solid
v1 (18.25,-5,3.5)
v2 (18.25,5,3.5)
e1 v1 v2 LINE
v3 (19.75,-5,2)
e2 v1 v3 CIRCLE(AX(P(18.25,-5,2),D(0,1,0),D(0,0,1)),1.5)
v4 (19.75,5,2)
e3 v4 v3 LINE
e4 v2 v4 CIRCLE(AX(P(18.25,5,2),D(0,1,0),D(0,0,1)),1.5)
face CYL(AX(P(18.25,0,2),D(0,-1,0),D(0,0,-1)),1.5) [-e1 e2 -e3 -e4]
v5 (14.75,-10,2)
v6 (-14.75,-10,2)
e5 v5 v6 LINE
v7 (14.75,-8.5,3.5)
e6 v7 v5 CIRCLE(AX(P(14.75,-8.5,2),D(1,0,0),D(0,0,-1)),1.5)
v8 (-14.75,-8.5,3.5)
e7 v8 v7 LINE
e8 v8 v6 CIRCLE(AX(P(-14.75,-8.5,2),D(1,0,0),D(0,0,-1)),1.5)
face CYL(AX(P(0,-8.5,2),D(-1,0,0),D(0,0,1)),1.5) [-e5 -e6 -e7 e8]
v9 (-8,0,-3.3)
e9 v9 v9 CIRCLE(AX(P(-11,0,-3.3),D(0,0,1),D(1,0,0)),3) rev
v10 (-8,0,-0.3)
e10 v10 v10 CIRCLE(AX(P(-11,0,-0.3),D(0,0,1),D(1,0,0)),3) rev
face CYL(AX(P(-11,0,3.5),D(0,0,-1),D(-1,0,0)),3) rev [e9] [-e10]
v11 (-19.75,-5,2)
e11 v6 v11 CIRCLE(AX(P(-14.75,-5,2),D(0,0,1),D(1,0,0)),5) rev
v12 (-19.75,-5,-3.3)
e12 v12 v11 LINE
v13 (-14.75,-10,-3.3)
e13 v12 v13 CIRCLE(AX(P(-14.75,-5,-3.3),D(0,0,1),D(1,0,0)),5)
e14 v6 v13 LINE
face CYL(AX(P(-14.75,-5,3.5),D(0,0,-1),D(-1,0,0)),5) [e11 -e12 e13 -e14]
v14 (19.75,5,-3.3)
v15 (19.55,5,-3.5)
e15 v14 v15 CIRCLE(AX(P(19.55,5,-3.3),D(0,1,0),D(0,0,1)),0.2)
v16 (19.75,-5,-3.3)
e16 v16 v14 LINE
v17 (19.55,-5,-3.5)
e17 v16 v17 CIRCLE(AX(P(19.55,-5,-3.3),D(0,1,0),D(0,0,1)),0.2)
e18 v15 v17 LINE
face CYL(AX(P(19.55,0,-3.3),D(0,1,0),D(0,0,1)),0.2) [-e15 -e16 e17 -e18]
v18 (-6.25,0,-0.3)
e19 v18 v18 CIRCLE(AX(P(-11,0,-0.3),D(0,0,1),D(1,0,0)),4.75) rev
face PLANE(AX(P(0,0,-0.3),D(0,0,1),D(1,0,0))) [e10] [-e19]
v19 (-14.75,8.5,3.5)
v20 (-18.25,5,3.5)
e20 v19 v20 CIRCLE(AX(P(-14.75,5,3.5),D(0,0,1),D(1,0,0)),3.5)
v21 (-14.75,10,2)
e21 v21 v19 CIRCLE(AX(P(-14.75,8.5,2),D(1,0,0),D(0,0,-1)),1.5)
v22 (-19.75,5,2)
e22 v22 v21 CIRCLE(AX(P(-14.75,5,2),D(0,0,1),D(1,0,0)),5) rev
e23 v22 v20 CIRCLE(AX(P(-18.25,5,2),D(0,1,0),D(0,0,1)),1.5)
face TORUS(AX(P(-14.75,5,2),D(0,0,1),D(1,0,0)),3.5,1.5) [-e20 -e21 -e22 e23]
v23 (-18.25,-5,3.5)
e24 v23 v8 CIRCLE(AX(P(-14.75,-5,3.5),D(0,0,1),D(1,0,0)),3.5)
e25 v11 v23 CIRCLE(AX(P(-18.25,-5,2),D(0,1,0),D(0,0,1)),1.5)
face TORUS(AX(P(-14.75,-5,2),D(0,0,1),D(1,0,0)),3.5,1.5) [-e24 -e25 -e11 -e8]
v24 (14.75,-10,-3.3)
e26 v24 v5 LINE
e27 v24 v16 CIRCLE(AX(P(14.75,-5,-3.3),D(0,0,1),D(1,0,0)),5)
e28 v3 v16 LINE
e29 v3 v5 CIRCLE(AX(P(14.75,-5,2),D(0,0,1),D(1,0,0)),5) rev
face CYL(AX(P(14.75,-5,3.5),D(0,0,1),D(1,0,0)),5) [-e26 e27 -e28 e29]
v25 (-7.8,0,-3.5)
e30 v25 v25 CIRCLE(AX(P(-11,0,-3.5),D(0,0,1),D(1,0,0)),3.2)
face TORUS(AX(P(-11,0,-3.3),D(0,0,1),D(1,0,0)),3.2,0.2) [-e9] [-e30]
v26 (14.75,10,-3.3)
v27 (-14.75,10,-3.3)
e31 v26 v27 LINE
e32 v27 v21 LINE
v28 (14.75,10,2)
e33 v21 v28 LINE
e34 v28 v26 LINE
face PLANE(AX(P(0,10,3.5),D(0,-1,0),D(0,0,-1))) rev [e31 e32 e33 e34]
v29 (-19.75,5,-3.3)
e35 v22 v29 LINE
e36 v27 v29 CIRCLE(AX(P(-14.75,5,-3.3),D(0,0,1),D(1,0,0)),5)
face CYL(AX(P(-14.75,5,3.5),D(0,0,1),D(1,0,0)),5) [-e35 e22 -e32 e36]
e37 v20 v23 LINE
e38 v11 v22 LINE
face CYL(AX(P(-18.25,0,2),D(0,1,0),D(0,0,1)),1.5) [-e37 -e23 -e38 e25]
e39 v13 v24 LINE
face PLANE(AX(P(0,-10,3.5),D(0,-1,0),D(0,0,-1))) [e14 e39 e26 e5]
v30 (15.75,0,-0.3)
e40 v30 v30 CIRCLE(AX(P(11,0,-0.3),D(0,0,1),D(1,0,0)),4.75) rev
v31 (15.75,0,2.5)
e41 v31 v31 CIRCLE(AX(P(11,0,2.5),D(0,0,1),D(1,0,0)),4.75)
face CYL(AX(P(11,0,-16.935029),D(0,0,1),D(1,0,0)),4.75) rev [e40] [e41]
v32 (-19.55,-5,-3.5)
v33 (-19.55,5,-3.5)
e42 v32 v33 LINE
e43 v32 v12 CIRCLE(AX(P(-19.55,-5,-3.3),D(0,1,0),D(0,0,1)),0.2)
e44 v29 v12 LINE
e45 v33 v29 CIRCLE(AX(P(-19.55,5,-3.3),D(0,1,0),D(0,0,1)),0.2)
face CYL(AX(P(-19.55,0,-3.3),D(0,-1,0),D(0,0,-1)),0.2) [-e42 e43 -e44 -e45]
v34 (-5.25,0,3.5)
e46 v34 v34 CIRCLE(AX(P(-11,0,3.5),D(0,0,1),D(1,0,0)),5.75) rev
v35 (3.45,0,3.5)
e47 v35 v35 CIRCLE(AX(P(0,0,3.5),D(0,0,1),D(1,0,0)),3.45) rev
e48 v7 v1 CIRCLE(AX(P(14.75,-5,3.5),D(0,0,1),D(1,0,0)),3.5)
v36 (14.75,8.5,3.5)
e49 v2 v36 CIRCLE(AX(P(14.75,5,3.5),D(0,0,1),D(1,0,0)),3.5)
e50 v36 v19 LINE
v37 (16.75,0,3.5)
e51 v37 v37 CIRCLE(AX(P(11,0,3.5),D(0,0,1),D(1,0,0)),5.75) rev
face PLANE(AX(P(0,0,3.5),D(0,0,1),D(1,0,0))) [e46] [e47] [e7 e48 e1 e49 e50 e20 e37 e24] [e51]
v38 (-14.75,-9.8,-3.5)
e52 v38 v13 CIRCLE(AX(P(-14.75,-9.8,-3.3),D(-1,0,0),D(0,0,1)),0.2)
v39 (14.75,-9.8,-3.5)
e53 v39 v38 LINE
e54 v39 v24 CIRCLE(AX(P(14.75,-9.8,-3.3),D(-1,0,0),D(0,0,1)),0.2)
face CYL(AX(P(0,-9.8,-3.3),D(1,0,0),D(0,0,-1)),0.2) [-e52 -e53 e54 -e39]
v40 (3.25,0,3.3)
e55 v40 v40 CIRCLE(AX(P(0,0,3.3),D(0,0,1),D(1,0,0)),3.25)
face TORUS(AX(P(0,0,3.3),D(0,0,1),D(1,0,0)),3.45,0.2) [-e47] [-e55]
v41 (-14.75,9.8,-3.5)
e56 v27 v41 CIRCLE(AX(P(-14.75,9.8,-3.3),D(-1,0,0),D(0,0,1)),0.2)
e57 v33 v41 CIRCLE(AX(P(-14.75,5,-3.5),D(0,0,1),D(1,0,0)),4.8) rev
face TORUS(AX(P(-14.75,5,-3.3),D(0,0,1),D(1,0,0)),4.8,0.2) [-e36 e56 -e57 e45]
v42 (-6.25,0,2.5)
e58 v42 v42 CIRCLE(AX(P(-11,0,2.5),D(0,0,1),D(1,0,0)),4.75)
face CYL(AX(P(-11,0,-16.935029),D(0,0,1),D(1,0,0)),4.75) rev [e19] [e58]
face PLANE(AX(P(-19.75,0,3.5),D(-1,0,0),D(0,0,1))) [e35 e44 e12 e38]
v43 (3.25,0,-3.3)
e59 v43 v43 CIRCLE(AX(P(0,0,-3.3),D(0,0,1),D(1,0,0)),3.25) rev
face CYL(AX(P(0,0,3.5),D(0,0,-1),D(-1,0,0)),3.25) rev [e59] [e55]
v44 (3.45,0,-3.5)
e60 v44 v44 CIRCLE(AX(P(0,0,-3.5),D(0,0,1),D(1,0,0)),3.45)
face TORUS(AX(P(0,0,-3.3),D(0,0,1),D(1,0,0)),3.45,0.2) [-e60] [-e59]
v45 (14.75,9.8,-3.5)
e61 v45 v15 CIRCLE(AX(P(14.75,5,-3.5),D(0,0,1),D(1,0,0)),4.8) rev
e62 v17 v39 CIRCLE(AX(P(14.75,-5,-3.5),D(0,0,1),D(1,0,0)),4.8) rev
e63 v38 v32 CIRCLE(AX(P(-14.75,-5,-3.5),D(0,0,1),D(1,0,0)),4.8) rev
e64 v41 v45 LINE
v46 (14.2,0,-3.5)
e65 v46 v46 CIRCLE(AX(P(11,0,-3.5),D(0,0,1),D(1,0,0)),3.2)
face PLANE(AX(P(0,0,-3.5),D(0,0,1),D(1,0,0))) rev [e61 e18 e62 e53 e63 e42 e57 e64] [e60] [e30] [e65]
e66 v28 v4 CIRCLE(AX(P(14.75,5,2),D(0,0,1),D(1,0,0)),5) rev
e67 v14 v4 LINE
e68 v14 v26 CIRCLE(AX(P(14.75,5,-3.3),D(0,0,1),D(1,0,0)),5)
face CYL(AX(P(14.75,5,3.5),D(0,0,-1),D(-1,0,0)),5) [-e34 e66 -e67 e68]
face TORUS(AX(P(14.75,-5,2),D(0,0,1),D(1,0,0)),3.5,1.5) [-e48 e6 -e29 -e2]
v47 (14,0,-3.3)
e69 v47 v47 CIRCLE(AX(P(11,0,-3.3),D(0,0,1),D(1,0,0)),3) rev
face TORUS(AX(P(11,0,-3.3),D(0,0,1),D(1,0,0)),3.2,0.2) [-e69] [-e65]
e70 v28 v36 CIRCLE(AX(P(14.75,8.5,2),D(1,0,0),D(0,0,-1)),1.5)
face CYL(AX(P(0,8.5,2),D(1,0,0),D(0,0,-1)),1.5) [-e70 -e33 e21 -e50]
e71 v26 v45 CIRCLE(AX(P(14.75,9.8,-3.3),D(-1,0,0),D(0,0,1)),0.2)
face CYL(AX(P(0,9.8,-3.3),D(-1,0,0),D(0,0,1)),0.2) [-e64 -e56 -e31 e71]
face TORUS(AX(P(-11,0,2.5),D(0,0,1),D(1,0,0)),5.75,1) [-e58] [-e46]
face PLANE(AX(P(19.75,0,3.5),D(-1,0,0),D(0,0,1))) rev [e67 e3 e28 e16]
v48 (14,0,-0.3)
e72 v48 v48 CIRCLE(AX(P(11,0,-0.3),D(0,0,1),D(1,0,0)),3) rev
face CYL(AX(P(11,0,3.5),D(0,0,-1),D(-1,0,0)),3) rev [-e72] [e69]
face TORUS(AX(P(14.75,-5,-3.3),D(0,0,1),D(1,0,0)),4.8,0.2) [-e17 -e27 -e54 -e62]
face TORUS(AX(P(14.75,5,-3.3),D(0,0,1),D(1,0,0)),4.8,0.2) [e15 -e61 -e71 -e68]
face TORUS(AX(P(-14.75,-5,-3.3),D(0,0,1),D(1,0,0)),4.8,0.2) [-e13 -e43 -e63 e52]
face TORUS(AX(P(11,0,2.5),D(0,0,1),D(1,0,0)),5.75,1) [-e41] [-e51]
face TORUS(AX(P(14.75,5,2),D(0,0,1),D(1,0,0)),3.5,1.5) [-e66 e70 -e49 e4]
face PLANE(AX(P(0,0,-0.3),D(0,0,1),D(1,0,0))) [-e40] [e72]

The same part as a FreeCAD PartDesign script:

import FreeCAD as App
import Part
import Sketcher

V = App.Vector
Q = App.Units.Quantity


def edges_at(feature, points):
    """Names of the edges that pass closest to the given points."""
    edges = feature.Shape.Edges
    near = lambda p: min(range(len(edges)), key=lambda i: edges[i].distToShape(Part.Vertex(*p))[0])
    return sorted({f"Edge{near(p) + 1}" for p in points})


def add_polygon(sketch, points):
    """Adds a closed chain of lines whose ends are joined by coincident constraints."""
    first, n = sketch.GeometryCount, len(points)
    for a, b in zip(points, points[1:] + points[:1]):
        sketch.addGeometry(Part.LineSegment(App.Vector(*a, 0), App.Vector(*b, 0)), False)
    for i in range(n):
        sketch.addConstraint(Sketcher.Constraint("Coincident", first + i, 2, first + (i + 1) % n, 1))

doc = App.newDocument("Part")
body = doc.addObject("PartDesign::Body", "Body")

sketch1 = body.newObject("Sketcher::SketchObject", "Sketch")
sketch1.AttachmentSupport = (doc.getObject("XY_Plane"), [""])
sketch1.MapMode = "FlatFace"
add_polygon(sketch1, [(-19.8, 10), (-19.8, -10), (19.8, -10), (19.8, 10)])
sketch1.addGeometry(Part.Circle(V(0, 0, 0), V(0, 0, 1), 3.2), False)
sketch1.addGeometry(Part.Circle(V(-11, 0, 0), V(0, 0, 1), 3), False)
sketch1.addGeometry(Part.Circle(V(11, 0, 0), V(0, 0, 1), 3), False)
sketch1.addConstraint(Sketcher.Constraint("Vertical", 0))
sketch1.addConstraint(Sketcher.Constraint("Horizontal", 1))
sketch1.addConstraint(Sketcher.Constraint("Vertical", 2))
sketch1.addConstraint(Sketcher.Constraint("Horizontal", 3))
sketch1.addConstraint(Sketcher.Constraint("Coincident", 4, 3, -1, 1))
sketch1.addConstraint(Sketcher.Constraint("Equal", 5, 6))
sketch1.addConstraint(Sketcher.Constraint("Symmetric", 5, 3, 6, 3, -1, 1))
sketch1.addConstraint(Sketcher.Constraint("Symmetric", 0, 2, 2, 2, -1, 1))
sketch1.addConstraint(Sketcher.Constraint("PointOnObject", 5, 3, -1))
sketch1.addConstraint(Sketcher.Constraint("Diameter", 5, Q("6 mm")))
sketch1.addConstraint(Sketcher.Constraint("Diameter", 4, Q("6.5 mm")))
sketch1.addConstraint(Sketcher.Constraint("DistanceY", 0, 2, 0, 1, Q("20 mm")))
sketch1.addConstraint(Sketcher.Constraint("DistanceX", 1, 1, 1, 2, Q("39.5 mm")))
sketch1.addConstraint(Sketcher.Constraint("DistanceX", 5, 3, -1, 1, Q("11 mm")))
pad1 = body.newObject("PartDesign::Pad", "Pad")
pad1.Profile = sketch1
pad1.Length = 7
pad1.Midplane = True

sketch2 = body.newObject("Sketcher::SketchObject", "Sketch001")
sketch2.AttachmentSupport = (doc.getObject("XY_Plane"), [""])
sketch2.MapMode = "FlatFace"
sketch2.AttachmentOffset = App.Placement(V(0, 0, -0.3), App.Rotation())
sketch2.addGeometry(Part.Circle(V(-11, 0, 0), V(0, 0, 1), 4.8), False)
sketch2.addGeometry(Part.Circle(V(-11, 0, 0), V(0, 0, 1), 3), False)
sketch2.addGeometry(Part.Circle(V(11, 0, 0), V(0, 0, 1), 4.8), False)
sketch2.addGeometry(Part.Circle(V(11, 0, 0), V(0, 0, 1), 3), False)
sketch2.addConstraint(Sketcher.Constraint("Coincident", 1, 3, 0, 3))
sketch2.addConstraint(Sketcher.Constraint("Coincident", 3, 3, 2, 3))
sketch2.addConstraint(Sketcher.Constraint("Equal", 0, 2))
sketch2.addConstraint(Sketcher.Constraint("Equal", 1, 3))
sketch2.addConstraint(Sketcher.Constraint("Symmetric", 0, 3, 2, 3, -1, 1))
sketch2.addConstraint(Sketcher.Constraint("PointOnObject", 0, 3, -1))
sketch2.addConstraint(Sketcher.Constraint("Diameter", 1, Q("6 mm")))
sketch2.addConstraint(Sketcher.Constraint("Diameter", 0, Q("9.5 mm")))
sketch2.addConstraint(Sketcher.Constraint("DistanceX", 0, 3, -1, 1, Q("11 mm")))
pocket1 = body.newObject("PartDesign::Pocket", "Pocket")
pocket1.Profile = sketch2
pocket1.Length = 3.8
pocket1.Reversed = True
doc.recompute()

fillet = body.newObject("PartDesign::Fillet", "Fillet")
fillet.Base = (pocket1, edges_at(pocket1, [
    (-19.75, 10, 0),
    (19.75, 10, 0),
    (19.75, -10, 0),
    (-19.75, -10, 0),
]))
fillet.Radius = 5
doc.recompute()

fillet2 = body.newObject("PartDesign::Fillet", "Fillet001")
fillet2.Base = (fillet, edges_at(fillet, [
    (0, 10, 3.5),
    (19.75, 0, 3.5),
    (-19.75, 0, 3.5),
    (0, -10, 3.5),
    (-18.286, 8.536, 3.5),
    (-18.286, -8.536, 3.5),
    (18.286, -8.536, 3.5),
    (18.286, 8.536, 3.5),
]))
fillet2.Radius = 1.5
doc.recompute()

fillet3 = body.newObject("PartDesign::Fillet", "Fillet002")
fillet3.Base = (fillet2, edges_at(fillet2, [(-15.75, 0, 3.5), (6.25, 0, 3.5)]))
fillet3.Radius = 1
doc.recompute()

fillet4 = body.newObject("PartDesign::Fillet", "Fillet003")
fillet4.Base = (fillet3, edges_at(fillet3, [
    (-3.25, 0, -3.5),
    (-3.25, 0, 3.5),
    (0, 10, -3.5),
    (-19.75, 0, -3.5),
    (19.75, 0, -3.5),
    (0, -10, -3.5),
    (-18.286, 8.536, -3.5),
    (-18.286, -8.536, -3.5),
    (18.286, -8.536, -3.5),
    (18.286, 8.536, -3.5),
    (-14, 0, -3.5),
    (8, 0, -3.5),
]))
fillet4.Radius = 0.2

doc.recompute()
